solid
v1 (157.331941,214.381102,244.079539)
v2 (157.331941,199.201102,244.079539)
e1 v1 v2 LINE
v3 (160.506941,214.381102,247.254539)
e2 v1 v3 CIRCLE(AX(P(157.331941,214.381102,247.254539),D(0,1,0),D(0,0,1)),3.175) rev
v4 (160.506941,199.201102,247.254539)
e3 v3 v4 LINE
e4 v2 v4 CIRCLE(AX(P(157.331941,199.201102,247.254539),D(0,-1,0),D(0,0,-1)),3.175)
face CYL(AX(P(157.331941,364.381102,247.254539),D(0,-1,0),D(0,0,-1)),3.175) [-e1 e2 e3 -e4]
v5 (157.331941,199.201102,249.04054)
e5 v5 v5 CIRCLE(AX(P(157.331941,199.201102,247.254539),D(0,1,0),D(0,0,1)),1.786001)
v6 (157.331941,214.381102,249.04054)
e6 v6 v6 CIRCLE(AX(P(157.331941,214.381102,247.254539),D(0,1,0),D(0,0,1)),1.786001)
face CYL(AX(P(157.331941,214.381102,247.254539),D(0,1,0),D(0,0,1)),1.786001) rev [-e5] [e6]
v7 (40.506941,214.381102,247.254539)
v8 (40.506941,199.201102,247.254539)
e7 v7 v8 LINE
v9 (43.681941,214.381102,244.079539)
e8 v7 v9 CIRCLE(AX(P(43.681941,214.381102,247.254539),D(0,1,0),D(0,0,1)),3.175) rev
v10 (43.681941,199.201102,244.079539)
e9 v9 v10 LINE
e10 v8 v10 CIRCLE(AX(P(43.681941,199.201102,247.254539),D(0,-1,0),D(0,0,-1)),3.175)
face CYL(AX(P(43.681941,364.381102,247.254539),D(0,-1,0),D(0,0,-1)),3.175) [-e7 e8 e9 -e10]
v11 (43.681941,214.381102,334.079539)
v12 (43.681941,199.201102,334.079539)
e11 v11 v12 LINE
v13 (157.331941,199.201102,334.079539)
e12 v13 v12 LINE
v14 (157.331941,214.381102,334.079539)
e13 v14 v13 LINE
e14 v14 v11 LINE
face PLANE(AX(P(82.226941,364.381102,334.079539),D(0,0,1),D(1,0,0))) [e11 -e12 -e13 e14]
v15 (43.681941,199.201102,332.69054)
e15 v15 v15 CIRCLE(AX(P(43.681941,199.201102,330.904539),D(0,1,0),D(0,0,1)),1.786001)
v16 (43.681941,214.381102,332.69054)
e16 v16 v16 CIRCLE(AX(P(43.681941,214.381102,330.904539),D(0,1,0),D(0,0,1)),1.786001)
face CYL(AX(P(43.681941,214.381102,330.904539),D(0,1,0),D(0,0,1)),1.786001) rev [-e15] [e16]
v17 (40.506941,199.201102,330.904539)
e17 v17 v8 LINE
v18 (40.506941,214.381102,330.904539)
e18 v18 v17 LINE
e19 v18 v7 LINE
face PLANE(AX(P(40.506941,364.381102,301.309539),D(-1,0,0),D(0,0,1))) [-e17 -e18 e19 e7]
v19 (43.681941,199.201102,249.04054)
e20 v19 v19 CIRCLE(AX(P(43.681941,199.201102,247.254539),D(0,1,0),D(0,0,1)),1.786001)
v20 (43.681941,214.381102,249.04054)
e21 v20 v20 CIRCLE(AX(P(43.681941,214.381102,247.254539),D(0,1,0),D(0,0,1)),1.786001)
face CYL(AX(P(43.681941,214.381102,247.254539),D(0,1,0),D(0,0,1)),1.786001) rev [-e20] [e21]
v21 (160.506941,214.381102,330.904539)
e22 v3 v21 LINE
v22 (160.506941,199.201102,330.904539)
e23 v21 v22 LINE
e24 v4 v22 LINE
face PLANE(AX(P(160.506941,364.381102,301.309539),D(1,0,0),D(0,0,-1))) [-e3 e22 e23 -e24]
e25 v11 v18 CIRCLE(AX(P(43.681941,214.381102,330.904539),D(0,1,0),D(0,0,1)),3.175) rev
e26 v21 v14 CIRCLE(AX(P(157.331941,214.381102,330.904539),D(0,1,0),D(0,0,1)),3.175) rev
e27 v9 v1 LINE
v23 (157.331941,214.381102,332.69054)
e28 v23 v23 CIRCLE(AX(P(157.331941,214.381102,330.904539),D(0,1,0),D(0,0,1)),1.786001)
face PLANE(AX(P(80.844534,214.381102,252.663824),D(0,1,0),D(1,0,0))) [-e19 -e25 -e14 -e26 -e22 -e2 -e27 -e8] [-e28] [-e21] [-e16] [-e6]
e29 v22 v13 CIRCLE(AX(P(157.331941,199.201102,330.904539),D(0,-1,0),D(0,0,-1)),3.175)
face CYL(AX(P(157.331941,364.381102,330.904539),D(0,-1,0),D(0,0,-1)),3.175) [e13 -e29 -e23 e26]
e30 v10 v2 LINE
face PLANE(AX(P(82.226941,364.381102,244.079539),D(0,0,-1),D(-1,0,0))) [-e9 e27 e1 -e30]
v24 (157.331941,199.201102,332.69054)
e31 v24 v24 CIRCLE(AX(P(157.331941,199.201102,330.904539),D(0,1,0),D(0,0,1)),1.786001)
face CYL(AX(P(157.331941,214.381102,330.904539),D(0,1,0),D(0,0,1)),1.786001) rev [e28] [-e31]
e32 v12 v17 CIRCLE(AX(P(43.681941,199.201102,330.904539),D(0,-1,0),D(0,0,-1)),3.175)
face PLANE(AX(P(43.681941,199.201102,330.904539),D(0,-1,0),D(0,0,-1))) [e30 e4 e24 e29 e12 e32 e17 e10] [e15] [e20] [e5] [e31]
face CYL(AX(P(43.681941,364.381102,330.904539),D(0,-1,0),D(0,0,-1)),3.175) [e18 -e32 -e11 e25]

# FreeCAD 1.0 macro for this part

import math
import FreeCAD as App
import Part
import Sketcher
Q = App.Units.Quantity

doc = App.newDocument("Part")
body = doc.addObject("PartDesign::Body", "Body")

sketch1 = doc.addObject("Sketcher::SketchObject", "Sketch")
body.addObject(sketch1)
sketch1.AttachmentSupport = (doc.XZ_Plane, [""])
sketch1.MapMode = "FlatFace"
sketch1.AttachmentOffset = App.Placement(App.Vector(0, 0, -199.201102), App.Rotation())
sketch1.addGeometry([
    Part.LineSegment(App.Vector(157.331941, 244.079539, 0), App.Vector(43.681941, 244.079539, 0)),
    Part.ArcOfCircle(Part.Circle(App.Vector(43.681941, 247.254539, 0), App.Vector(0, 0, 1), 3.175), math.radians(-180), math.radians(-90)),
    Part.LineSegment(App.Vector(40.506941, 247.254539, 0), App.Vector(40.506941, 330.904539, 0)),
    Part.ArcOfCircle(Part.Circle(App.Vector(43.681941, 330.904539, 0), App.Vector(0, 0, 1), 3.175), math.radians(90), math.radians(180)),
    Part.LineSegment(App.Vector(43.681941, 334.079539, 0), App.Vector(157.331941, 334.079539, 0)),
    Part.ArcOfCircle(Part.Circle(App.Vector(157.331941, 330.904539, 0), App.Vector(0, 0, 1), 3.175), math.radians(0), math.radians(90)),
    Part.LineSegment(App.Vector(160.506941, 330.904539, 0), App.Vector(160.506941, 247.254539, 0)),
    Part.ArcOfCircle(Part.Circle(App.Vector(157.331941, 247.254539, 0), App.Vector(0, 0, 1), 3.175), math.radians(-90), math.radians(0)),
], False)
sketch1.addConstraint([
    Sketcher.Constraint("Tangent", 0, 2, 1, 2),
    Sketcher.Constraint("Tangent", 1, 1, 2, 1),
    Sketcher.Constraint("Tangent", 2, 2, 3, 2),
    Sketcher.Constraint("Tangent", 3, 1, 4, 1),
    Sketcher.Constraint("Tangent", 4, 2, 5, 2),
    Sketcher.Constraint("Tangent", 5, 1, 6, 1),
    Sketcher.Constraint("Tangent", 6, 2, 7, 2),
    Sketcher.Constraint("Tangent", 7, 1, 0, 1),
    Sketcher.Constraint("Horizontal", 0),
    Sketcher.Constraint("Vertical", 2),
    Sketcher.Constraint("Horizontal", 4),
    Sketcher.Constraint("Vertical", 6),
    Sketcher.Constraint("Equal", 1, 3),
    Sketcher.Constraint("Equal", 3, 5),
    Sketcher.Constraint("Equal", 5, 7),
    Sketcher.Constraint("Radius", 1, Q("0.125 in")),
    Sketcher.Constraint("DistanceX", 0, 2, 0, 1, Q("113.65 mm")),
    Sketcher.Constraint("DistanceY", 2, 1, 2, 2, Q("83.65 mm")),
    Sketcher.Constraint("DistanceX", -1, 1, 1, 3, Q("43.681941 mm")),
    Sketcher.Constraint("DistanceY", -1, 1, 1, 3, Q("247.254539 mm")),
])
pad1 = doc.addObject("PartDesign::Pad", "Pad")
body.addObject(pad1)
pad1.Profile = sketch1
pad1.Length = 15.18
pad1.Reversed = True

sketch2 = doc.addObject("Sketcher::SketchObject", "Sketch001")
body.addObject(sketch2)
sketch2.AttachmentSupport = (doc.XZ_Plane, [""])
sketch2.MapMode = "FlatFace"
sketch2.AttachmentOffset = App.Placement(App.Vector(0, 0, -214.381102), App.Rotation())
sketch2.addGeometry([
    Part.Circle(App.Vector(43.681941, 330.904539, 0), App.Vector(0, 0, 1), 1.786001),
    Part.Circle(App.Vector(43.681941, 247.254539, 0), App.Vector(0, 0, 1), 1.786001),
    Part.Circle(App.Vector(157.331941, 247.254539, 0), App.Vector(0, 0, 1), 1.786001),
    Part.Circle(App.Vector(157.331941, 330.904539, 0), App.Vector(0, 0, 1), 1.786001),
], False)
sketch2.addConstraint([
    Sketcher.Constraint("Equal", 0, 1),
    Sketcher.Constraint("Equal", 1, 2),
    Sketcher.Constraint("Equal", 2, 3),
    Sketcher.Constraint("Horizontal", 1, 3, 2, 3),
    Sketcher.Constraint("Horizontal", 0, 3, 3, 3),
    Sketcher.Constraint("Vertical", 0, 3, 1, 3),
    Sketcher.Constraint("Vertical", 2, 3, 3, 3),
    Sketcher.Constraint("Diameter", 0, Q("3.572002 mm")),
    Sketcher.Constraint("DistanceY", 1, 3, 0, 3, Q("83.65 mm")),
    Sketcher.Constraint("DistanceX", 1, 3, 2, 3, Q("113.65 mm")),
    Sketcher.Constraint("DistanceX", -1, 1, 0, 3, Q("43.681941 mm")),
    Sketcher.Constraint("DistanceY", -1, 1, 0, 3, Q("330.904539 mm")),
])
doc.recompute()
hole = doc.addObject("PartDesign::Hole", "Hole")
body.addObject(hole)
hole.Profile = sketch2
hole.ThreadType = "None"
hole.Diameter = 3.572002
hole.DepthType = "ThroughAll"
hole.Reversed = True

doc.recompute()
